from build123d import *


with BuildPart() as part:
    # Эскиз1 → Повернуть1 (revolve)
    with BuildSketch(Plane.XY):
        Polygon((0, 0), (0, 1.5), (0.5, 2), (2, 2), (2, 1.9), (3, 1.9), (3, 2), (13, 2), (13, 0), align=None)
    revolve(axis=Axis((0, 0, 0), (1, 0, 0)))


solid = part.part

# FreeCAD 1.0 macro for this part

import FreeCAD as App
import Part
import Sketcher

doc = App.newDocument("Part")
params = doc.addObject("Spreadsheet::Sheet", "Params")
for row, (alias, value) in enumerate([
    ("sketch1_width", "13 mm"),
    ("sketch1_width2", "10 mm"),
    ("sketch1_width3", "1 mm"),
    ("sketch1_height", "2 mm"),
    ("sketch1_width4", "1.5 mm"),
    ("revolution_angle", "360 deg"),
], start=1):
    params.set(f"A{row}", alias)
    params.set(f"B{row}", "=" + value)
    params.setAlias(f"B{row}", alias)

body = doc.addObject("PartDesign::Body", "Body")

# Sketch on XY plane
sketch1 = body.newObject("Sketcher::SketchObject", "Sketch")
sketch1.AttachmentSupport = (doc.getObject("XY_Plane"), [""])
sketch1.MapMode = "FlatFace"
sketch1.addGeometry([
    Part.LineSegment(App.Vector(0, 1.5, 0), App.Vector(0, 0, 0)),  # 0
    Part.LineSegment(App.Vector(0, 0, 0), App.Vector(13, 0, 0)),  # 1
    Part.LineSegment(App.Vector(13, 0, 0), App.Vector(13, 2, 0)),  # 2
    Part.LineSegment(App.Vector(13, 2, 0), App.Vector(3, 2, 0)),  # 3
    Part.LineSegment(App.Vector(3, 2, 0), App.Vector(3, 1.9, 0)),  # 4
    Part.LineSegment(App.Vector(3, 1.9, 0), App.Vector(2, 1.9, 0)),  # 5
    Part.LineSegment(App.Vector(2, 1.9, 0), App.Vector(2, 2, 0)),  # 6
    Part.LineSegment(App.Vector(2, 2, 0), App.Vector(0.5, 2, 0)),  # 7
    Part.LineSegment(App.Vector(0.5, 2, 0), App.Vector(0, 1.5, 0)),  # 8
], False)
sketch1.addConstraint([
    Sketcher.Constraint("Coincident", 0, 2, 1, 1),
    Sketcher.Constraint("Coincident", 1, 2, 2, 1),
    Sketcher.Constraint("Coincident", 2, 2, 3, 1),
    Sketcher.Constraint("Coincident", 3, 2, 4, 1),
    Sketcher.Constraint("Coincident", 4, 2, 5, 1),
    Sketcher.Constraint("Coincident", 5, 2, 6, 1),
    Sketcher.Constraint("Coincident", 6, 2, 7, 1),
    Sketcher.Constraint("Coincident", 7, 2, 8, 1),
    Sketcher.Constraint("Coincident", 8, 2, 0, 1),
    Sketcher.Constraint("Vertical", 0),
    Sketcher.Constraint("Horizontal", 1),
    Sketcher.Constraint("Vertical", 2),
    Sketcher.Constraint("Horizontal", 3),
    Sketcher.Constraint("Vertical", 4),
    Sketcher.Constraint("Horizontal", 5),
    Sketcher.Constraint("Vertical", 6),
    Sketcher.Constraint("Horizontal", 7),
    Sketcher.Constraint("Coincident", 0, 2, -1, 1),
    Sketcher.Constraint("Horizontal", 3, 2, 6, 2),
    Sketcher.Constraint("Equal", 7, 0),
    Sketcher.Constraint("DistanceX", 1, 1, 1, 2, 13.0),
    Sketcher.Constraint("DistanceX", 3, 2, 3, 1, 10.0),
    Sketcher.Constraint("DistanceX", 5, 2, 5, 1, 1.0),
    Sketcher.Constraint("DistanceY", 2, 1, 2, 2, 2.0),
    Sketcher.Constraint("DistanceX", 7, 2, 7, 1, 1.5),
    Sketcher.Constraint("DistanceY", 4, 2, 4, 1, 0.1),
])
sketch1.setExpression("Constraints[20]", "Params.sketch1_width")
sketch1.setExpression("Constraints[21]", "Params.sketch1_width2")
sketch1.setExpression("Constraints[22]", "Params.sketch1_width3")
sketch1.setExpression("Constraints[23]", "Params.sketch1_height")
sketch1.setExpression("Constraints[24]", "Params.sketch1_width4")
revolution = body.newObject("PartDesign::Revolution", "Revolution")
revolution.Profile = sketch1
revolution.ReferenceAxis = (sketch1, ["H_Axis"])
revolution.setExpression("Angle", "Params.revolution_angle")

doc.recompute()
